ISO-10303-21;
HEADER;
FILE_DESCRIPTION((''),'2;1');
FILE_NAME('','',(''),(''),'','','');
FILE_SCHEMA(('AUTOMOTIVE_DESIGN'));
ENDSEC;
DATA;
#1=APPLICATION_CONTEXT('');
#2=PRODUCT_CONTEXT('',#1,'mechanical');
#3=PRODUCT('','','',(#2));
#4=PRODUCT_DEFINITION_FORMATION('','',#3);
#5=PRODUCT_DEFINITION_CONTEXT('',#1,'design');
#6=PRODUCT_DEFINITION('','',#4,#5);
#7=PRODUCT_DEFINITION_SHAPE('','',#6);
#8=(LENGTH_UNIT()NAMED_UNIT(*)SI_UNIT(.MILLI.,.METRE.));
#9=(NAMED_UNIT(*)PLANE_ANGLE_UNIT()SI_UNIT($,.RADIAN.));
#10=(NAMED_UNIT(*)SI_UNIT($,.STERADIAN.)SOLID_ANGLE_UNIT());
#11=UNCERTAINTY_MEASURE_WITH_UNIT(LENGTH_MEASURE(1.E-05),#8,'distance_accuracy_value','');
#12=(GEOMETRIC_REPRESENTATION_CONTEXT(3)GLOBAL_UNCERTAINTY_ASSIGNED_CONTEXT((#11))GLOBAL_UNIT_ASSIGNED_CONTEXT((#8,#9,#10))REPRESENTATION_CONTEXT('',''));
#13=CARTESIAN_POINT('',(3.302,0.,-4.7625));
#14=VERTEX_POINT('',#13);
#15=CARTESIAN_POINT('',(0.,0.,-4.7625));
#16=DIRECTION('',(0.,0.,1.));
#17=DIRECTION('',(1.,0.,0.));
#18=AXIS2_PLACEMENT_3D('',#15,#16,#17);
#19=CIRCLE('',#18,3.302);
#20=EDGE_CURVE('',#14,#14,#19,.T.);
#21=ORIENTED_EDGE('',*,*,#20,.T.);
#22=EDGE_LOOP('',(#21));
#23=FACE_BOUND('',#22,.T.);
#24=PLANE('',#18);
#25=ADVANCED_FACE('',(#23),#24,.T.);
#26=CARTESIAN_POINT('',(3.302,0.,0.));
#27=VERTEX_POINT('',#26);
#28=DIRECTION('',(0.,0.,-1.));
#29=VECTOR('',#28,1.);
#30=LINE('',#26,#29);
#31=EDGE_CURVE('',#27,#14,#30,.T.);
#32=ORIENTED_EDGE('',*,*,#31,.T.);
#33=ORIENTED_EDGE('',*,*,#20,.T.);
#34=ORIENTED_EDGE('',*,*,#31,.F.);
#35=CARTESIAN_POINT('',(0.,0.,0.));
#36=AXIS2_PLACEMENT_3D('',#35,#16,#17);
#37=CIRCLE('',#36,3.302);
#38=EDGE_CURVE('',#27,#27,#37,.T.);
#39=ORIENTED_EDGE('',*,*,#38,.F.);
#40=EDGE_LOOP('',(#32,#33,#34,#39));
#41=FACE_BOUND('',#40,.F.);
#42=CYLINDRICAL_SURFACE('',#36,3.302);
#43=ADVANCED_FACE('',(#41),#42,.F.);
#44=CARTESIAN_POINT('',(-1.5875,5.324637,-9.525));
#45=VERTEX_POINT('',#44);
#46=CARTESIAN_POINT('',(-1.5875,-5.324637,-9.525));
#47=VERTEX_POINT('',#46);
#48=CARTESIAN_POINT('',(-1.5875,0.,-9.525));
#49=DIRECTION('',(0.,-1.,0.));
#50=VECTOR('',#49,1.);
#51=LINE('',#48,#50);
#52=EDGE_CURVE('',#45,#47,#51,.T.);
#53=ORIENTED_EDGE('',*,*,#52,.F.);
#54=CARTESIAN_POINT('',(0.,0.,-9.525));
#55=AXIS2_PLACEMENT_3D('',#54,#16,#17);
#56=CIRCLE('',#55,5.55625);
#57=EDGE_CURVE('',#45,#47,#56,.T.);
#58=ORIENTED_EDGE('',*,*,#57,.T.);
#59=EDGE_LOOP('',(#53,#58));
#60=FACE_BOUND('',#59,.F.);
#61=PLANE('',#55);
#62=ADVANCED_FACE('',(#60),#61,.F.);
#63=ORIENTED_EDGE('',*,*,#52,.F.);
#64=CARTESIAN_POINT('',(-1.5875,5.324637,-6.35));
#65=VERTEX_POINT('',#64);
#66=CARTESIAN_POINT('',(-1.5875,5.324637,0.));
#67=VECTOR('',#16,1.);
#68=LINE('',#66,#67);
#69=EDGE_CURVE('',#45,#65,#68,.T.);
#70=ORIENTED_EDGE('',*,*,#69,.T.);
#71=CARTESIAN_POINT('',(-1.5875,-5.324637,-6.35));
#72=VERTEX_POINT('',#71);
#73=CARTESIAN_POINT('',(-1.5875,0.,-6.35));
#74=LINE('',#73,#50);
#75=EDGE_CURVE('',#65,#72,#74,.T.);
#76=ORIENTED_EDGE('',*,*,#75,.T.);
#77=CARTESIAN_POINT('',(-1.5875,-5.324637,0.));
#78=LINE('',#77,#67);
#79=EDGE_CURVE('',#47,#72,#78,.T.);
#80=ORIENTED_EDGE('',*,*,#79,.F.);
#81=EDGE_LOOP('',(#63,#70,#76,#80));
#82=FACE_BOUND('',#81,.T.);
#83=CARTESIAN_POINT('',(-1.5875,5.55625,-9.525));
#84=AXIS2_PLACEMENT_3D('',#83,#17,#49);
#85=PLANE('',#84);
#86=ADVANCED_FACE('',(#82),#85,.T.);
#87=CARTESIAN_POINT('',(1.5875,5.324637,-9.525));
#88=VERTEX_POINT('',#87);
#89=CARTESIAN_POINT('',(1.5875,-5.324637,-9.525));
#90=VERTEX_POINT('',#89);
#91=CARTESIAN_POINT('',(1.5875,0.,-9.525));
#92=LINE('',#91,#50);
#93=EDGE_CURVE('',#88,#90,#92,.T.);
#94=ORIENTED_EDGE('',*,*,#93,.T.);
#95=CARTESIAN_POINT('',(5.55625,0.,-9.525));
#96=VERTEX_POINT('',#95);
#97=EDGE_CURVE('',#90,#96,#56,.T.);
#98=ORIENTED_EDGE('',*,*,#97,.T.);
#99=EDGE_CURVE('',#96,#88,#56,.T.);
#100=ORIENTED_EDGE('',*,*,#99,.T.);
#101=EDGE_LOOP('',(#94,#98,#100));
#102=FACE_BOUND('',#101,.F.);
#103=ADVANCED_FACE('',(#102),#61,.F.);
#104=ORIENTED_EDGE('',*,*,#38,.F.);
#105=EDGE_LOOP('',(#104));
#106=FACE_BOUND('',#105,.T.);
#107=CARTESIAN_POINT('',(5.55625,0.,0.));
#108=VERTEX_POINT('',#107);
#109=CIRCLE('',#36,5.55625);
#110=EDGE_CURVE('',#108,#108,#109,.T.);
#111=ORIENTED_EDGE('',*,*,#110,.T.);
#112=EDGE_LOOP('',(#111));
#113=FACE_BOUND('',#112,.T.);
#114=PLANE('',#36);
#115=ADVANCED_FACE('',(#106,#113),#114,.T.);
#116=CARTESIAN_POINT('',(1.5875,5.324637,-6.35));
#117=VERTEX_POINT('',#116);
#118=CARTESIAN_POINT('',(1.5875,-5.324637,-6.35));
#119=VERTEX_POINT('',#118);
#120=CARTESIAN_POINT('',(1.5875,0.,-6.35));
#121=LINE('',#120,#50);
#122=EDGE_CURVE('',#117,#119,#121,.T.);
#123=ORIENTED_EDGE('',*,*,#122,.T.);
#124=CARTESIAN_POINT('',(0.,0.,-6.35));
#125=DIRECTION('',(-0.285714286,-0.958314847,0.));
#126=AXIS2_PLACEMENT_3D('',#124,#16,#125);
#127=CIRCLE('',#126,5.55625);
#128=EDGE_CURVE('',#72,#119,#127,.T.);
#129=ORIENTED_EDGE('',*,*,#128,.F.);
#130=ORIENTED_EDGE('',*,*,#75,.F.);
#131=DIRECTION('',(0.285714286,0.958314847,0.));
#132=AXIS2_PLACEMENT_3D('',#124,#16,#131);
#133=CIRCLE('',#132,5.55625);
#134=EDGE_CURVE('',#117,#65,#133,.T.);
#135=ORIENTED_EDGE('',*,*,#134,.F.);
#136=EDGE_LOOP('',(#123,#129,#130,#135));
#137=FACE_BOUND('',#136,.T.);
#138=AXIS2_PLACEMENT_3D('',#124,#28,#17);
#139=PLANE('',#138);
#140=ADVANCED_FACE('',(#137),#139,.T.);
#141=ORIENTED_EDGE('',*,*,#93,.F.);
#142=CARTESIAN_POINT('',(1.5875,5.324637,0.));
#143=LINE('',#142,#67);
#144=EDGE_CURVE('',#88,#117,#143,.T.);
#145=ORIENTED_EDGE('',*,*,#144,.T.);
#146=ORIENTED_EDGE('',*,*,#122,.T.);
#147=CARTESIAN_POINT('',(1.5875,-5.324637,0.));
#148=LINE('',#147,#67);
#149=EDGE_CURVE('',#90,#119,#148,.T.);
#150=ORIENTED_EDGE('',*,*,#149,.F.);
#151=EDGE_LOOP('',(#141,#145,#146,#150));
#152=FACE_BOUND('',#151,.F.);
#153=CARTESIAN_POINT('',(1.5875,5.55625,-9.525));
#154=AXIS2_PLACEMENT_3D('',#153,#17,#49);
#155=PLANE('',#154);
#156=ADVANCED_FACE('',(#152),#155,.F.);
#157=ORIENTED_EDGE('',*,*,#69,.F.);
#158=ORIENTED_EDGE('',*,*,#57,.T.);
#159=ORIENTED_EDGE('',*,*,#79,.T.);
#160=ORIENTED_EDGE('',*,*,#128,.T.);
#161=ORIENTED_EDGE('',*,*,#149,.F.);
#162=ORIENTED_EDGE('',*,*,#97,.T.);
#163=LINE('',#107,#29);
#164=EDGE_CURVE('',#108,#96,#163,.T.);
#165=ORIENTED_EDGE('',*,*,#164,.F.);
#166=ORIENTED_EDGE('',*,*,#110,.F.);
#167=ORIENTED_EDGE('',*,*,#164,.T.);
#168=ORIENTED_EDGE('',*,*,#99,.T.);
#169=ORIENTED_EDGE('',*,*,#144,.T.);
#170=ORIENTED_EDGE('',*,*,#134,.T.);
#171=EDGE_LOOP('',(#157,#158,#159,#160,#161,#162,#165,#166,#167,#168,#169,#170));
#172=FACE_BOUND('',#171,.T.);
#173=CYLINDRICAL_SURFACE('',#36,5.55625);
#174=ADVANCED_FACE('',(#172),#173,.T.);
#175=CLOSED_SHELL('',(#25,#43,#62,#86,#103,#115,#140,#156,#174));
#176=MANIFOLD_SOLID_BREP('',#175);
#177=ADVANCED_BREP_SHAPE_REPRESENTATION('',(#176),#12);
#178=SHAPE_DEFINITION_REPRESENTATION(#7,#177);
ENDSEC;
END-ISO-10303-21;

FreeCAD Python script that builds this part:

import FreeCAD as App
import Part
import Sketcher
Q = App.Units.Quantity

doc = App.newDocument("Part")
params = doc.addObject("Spreadsheet::Sheet", "Params")
for row, (alias, value) in enumerate([
    ("sketch1_diameter", "0.4375 in"),
    ("pad1_length", "0.375 in"),
    ("sketch2_width", "0.125 in"),
    ("sketch2_height", "0.4375 in"),
    ("pocket1_length", "0.125 in"),
    ("sketch3_diameter", "0.26 in"),
    ("pocket2_length", "0.1875 in"),
], start=1):
    params.set(f"A{row}", alias)
    params.set(f"B{row}", "=" + value)
    params.setAlias(f"B{row}", alias)

body = doc.addObject("PartDesign::Body", "Body")

# Sketch on XY plane
sketch1 = doc.addObject("Sketcher::SketchObject", "Sketch")
body.addObject(sketch1)
sketch1.AttachmentSupport = (doc.XY_Plane, [""])
sketch1.MapMode = "FlatFace"
sketch1.addGeometry(Part.Circle(App.Vector(0, 0, 0), App.Vector(0, 0, 1), 6), False)
sketch1.addConstraint([
    Sketcher.Constraint("Coincident", 0, 3, -1, 1),
    Sketcher.Constraint("Diameter", 0, Q("0.4375 in")),
])
sketch1.setExpression("Constraints[1]", "Params.sketch1_diameter")
pad1 = doc.addObject("PartDesign::Pad", "Pad")
body.addObject(pad1)
pad1.Profile = sketch1
pad1.setExpression("Length", "Params.pad1_length")
pad1.Reversed = True

# Sketch on XY plane
sketch2 = doc.addObject("Sketcher::SketchObject", "Sketch001")
body.addObject(sketch2)
sketch2.AttachmentSupport = (doc.XY_Plane, [""])
sketch2.MapMode = "FlatFace"
sketch2.AttachmentOffset = App.Placement(App.Vector(0, 0, -0.375 * 25.4), App.Rotation())
sketch2.addGeometry([
    Part.LineSegment(App.Vector(-1.6, -5.6, 0), App.Vector(-1.6, 5.6, 0)),
    Part.LineSegment(App.Vector(-1.6, 5.6, 0), App.Vector(1.6, 5.6, 0)),
    Part.LineSegment(App.Vector(1.6, 5.6, 0), App.Vector(1.6, -5.6, 0)),
    Part.LineSegment(App.Vector(1.6, -5.6, 0), App.Vector(-1.6, -5.6, 0)),
], False)
sketch2.addConstraint([
    Sketcher.Constraint("Coincident", 0, 2, 1, 1),
    Sketcher.Constraint("Coincident", 1, 2, 2, 1),
    Sketcher.Constraint("Coincident", 2, 2, 3, 1),
    Sketcher.Constraint("Coincident", 3, 2, 0, 1),
    Sketcher.Constraint("Vertical", 0),
    Sketcher.Constraint("Horizontal", 1),
    Sketcher.Constraint("Vertical", 2),
    Sketcher.Constraint("Horizontal", 3),
    Sketcher.Constraint("Symmetric", 0, 2, 2, 2, -1, 1),
    Sketcher.Constraint("DistanceX", 1, 1, 1, 2, Q("0.125 in")),
    Sketcher.Constraint("DistanceY", 0, 1, 0, 2, Q("0.4375 in")),
])
sketch2.setExpression("Constraints[9]", "Params.sketch2_width")
sketch2.setExpression("Constraints[10]", "Params.sketch2_height")
pocket1 = doc.addObject("PartDesign::Pocket", "Pocket")
body.addObject(pocket1)
pocket1.Profile = sketch2
pocket1.setExpression("Length", "Params.pocket1_length")
pocket1.Reversed = True

# Sketch on XY plane
sketch3 = doc.addObject("Sketcher::SketchObject", "Sketch002")
body.addObject(sketch3)
sketch3.AttachmentSupport = (doc.XY_Plane, [""])
sketch3.MapMode = "FlatFace"
sketch3.addGeometry(Part.Circle(App.Vector(0, 0, 0), App.Vector(0, 0, 1), 3.3), False)
sketch3.addConstraint([
    Sketcher.Constraint("Coincident", 0, 3, -1, 1),
    Sketcher.Constraint("Diameter", 0, Q("0.26 in")),
])
sketch3.setExpression("Constraints[1]", "Params.sketch3_diameter")
pocket2 = doc.addObject("PartDesign::Pocket", "Pocket001")
body.addObject(pocket2)
pocket2.Profile = sketch3
pocket2.setExpression("Length", "Params.pocket2_length")

doc.recompute()
